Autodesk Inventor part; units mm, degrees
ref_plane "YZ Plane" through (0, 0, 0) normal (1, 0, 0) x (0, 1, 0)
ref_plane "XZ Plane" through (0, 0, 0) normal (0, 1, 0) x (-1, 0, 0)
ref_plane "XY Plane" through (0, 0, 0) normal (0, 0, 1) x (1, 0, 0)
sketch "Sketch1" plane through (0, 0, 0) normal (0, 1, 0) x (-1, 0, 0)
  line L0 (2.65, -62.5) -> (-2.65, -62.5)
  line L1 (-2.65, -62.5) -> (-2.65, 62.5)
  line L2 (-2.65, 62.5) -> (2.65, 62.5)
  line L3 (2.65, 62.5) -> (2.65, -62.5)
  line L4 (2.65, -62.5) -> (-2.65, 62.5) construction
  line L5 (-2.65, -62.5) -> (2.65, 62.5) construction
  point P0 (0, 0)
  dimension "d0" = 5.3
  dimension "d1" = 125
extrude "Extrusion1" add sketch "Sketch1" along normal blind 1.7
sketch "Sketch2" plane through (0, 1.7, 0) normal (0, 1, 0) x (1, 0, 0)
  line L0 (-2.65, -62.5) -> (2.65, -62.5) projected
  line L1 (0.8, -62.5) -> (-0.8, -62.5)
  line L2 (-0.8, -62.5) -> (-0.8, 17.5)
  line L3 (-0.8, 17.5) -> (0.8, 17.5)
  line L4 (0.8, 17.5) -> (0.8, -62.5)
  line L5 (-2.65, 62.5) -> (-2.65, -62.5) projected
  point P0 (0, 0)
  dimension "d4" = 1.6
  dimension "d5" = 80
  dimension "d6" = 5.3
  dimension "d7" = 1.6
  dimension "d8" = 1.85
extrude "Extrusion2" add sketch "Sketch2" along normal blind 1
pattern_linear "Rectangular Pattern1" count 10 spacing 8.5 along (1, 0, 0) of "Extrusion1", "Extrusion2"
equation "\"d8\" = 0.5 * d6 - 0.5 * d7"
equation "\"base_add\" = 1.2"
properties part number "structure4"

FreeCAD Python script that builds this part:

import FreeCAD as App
import Part
import Sketcher


def add_polygon(sketch, points):
    """Adds a closed chain of lines whose ends are joined by coincident constraints."""
    first, n = sketch.GeometryCount, len(points)
    for a, b in zip(points, points[1:] + points[:1]):
        sketch.addGeometry(Part.LineSegment(App.Vector(*a, 0), App.Vector(*b, 0)), False)
    for i in range(n):
        sketch.addConstraint(Sketcher.Constraint("Coincident", first + i, 2, first + (i + 1) % n, 1))

doc = App.newDocument("Part")
body = doc.addObject("PartDesign::Body", "Body")
body.AllowCompound = True

sketch1 = doc.addObject("Sketcher::SketchObject", "Sketch")
body.addObject(sketch1)
sketch1.AttachmentSupport = (doc.XZ_Plane, [""])
sketch1.MapMode = "FlatFace"
add_polygon(sketch1, [(3, -62), (-3, -62), (-3, 62), (3, 62)])
sketch1.addConstraint([
    Sketcher.Constraint("Horizontal", 0),
    Sketcher.Constraint("Vertical", 1),
    Sketcher.Constraint("Horizontal", 2),
    Sketcher.Constraint("Vertical", 3),
    Sketcher.Constraint("Symmetric", 0, 2, 2, 2, -1, 1),
    Sketcher.Constraint("DistanceY", 1, 1, 1, 2, 125.0),
    Sketcher.Constraint("DistanceX", 0, 2, 0, 1, 5.3),
])
pad1 = doc.addObject("PartDesign::Pad", "Pad")
body.addObject(pad1)
pad1.Profile = sketch1
pad1.Length = 1.7
pad1.Reversed = True

sketch2 = doc.addObject("Sketcher::SketchObject", "Sketch001")
body.addObject(sketch2)
sketch2.AttachmentSupport = (doc.XZ_Plane, [""])
sketch2.MapMode = "FlatFace"
sketch2.AttachmentOffset = App.Placement(App.Vector(0, 0, -1.7), App.Rotation())
add_polygon(sketch2, [(-0.8, -17.5), (-0.8, 62.5), (0.8, 62.5), (0.8, -17.5)])
sketch2.addConstraint([
    Sketcher.Constraint("Vertical", 0),
    Sketcher.Constraint("Horizontal", 1),
    Sketcher.Constraint("Vertical", 2),
    Sketcher.Constraint("Horizontal", 3),
    Sketcher.Constraint("DistanceY", 0, 1, 0, 2, 80.0),
    Sketcher.Constraint("DistanceX", 1, 1, 1, 2, 1.6),
    Sketcher.Constraint("DistanceX", 0, 2, -1, 1, 0.8),
    Sketcher.Constraint("DistanceY", -1, 1, 0, 2, 62.5),
])
pad2 = doc.addObject("PartDesign::Pad", "Pad001")
body.addObject(pad2)
pad2.Profile = sketch2
pad2.Length = 1
pad2.Reversed = True
doc.recompute()

linearpattern = doc.addObject("PartDesign::LinearPattern", "LinearPattern")
body.addObject(linearpattern)
linearpattern.Originals = [pad1, pad2]
linearpattern.Direction = (doc.X_Axis, [""])
linearpattern.Mode = "offset"
linearpattern.Offset = 8.5
linearpattern.Occurrences = 10
body.Tip = linearpattern

doc.recompute()
